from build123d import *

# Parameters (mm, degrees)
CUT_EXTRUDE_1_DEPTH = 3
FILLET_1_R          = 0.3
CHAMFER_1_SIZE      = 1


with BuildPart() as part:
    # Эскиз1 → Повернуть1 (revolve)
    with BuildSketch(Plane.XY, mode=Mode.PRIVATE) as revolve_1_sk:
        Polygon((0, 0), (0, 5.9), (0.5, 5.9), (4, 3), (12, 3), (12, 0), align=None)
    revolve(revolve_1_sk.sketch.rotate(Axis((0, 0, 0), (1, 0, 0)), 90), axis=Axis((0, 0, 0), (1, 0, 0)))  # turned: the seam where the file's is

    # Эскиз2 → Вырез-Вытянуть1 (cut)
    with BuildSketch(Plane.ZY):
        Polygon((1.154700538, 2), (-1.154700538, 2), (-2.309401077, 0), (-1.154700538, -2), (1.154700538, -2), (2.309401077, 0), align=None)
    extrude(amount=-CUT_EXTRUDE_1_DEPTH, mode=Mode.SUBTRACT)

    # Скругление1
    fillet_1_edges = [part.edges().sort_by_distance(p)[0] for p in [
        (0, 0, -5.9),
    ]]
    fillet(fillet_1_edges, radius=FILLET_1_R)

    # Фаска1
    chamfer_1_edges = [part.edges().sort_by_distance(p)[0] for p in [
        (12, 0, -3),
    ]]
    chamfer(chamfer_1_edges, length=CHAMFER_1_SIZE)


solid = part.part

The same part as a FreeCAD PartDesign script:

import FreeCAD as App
import Part
import Sketcher
Q = App.Units.Quantity


def edges_at(feature, points):
    """Names of the edges that pass closest to the given points."""
    edges = feature.Shape.Edges
    near = lambda p: min(range(len(edges)), key=lambda i: edges[i].distToShape(Part.Vertex(*p))[0])
    return sorted({f"Edge{near(p) + 1}" for p in points})

doc = App.newDocument("Part")
params = doc.addObject("Spreadsheet::Sheet", "Params")
for row, (alias, value) in enumerate([
    ("sketch1_width", "12 mm"),
    ("sketch1_width2", "8 mm"),
    ("sketch1_height", "3 mm"),
    ("sketch1_width3", "0.5 mm"),
    ("sketch1_height2", "5.9 mm"),
    ("revolution_angle", "360 deg"),
    ("pocket1_length", "3 mm"),
    ("fillet_radius", "0.3 mm"),
    ("chamfer_size", "1 mm"),
], start=1):
    params.set(f"A{row}", alias)
    params.set(f"B{row}", "=" + value)
    params.setAlias(f"B{row}", alias)

body = doc.addObject("PartDesign::Body", "Body")

sketch1 = doc.addObject("Sketcher::SketchObject", "Sketch")
body.addObject(sketch1)
sketch1.AttachmentSupport = (doc.XY_Plane, [""])
sketch1.MapMode = "FlatFace"
sketch1.addGeometry([
    Part.LineSegment(App.Vector(0, 5.9, 0), App.Vector(0, 0, 0)),
    Part.LineSegment(App.Vector(0, 0, 0), App.Vector(12, 0, 0)),
    Part.LineSegment(App.Vector(12, 0, 0), App.Vector(12, 3, 0)),
    Part.LineSegment(App.Vector(12, 3, 0), App.Vector(4, 3, 0)),
    Part.LineSegment(App.Vector(4, 3, 0), App.Vector(0.5, 5.9, 0)),
    Part.LineSegment(App.Vector(0.5, 5.9, 0), App.Vector(0, 5.9, 0)),
], False)
sketch1.addConstraint([
    Sketcher.Constraint("Coincident", 0, 2, 1, 1),
    Sketcher.Constraint("Coincident", 1, 2, 2, 1),
    Sketcher.Constraint("Coincident", 2, 2, 3, 1),
    Sketcher.Constraint("Coincident", 3, 2, 4, 1),
    Sketcher.Constraint("Coincident", 4, 2, 5, 1),
    Sketcher.Constraint("Coincident", 5, 2, 0, 1),
    Sketcher.Constraint("Vertical", 0),
    Sketcher.Constraint("Horizontal", 1),
    Sketcher.Constraint("Vertical", 2),
    Sketcher.Constraint("Horizontal", 3),
    Sketcher.Constraint("Horizontal", 5),
    Sketcher.Constraint("Coincident", 0, 2, -1, 1),
    Sketcher.Constraint("DistanceX", 1, 1, 1, 2, 12.0),
    Sketcher.Constraint("DistanceX", 3, 2, 3, 1, 8.0),
    Sketcher.Constraint("DistanceY", 2, 1, 2, 2, 3.0),
    Sketcher.Constraint("DistanceX", 5, 2, 5, 1, 0.5),
    Sketcher.Constraint("DistanceY", 0, 2, 0, 1, 5.9),
])
sketch1.setExpression("Constraints[12]", "Params.sketch1_width")
sketch1.setExpression("Constraints[13]", "Params.sketch1_width2")
sketch1.setExpression("Constraints[14]", "Params.sketch1_height")
sketch1.setExpression("Constraints[15]", "Params.sketch1_width3")
sketch1.setExpression("Constraints[16]", "Params.sketch1_height2")
revolution = doc.addObject("PartDesign::Revolution", "Revolution")
body.addObject(revolution)
revolution.Profile = sketch1
revolution.ReferenceAxis = (sketch1, ["H_Axis"])
revolution.setExpression("Angle", "Params.revolution_angle")

sketch2 = doc.addObject("Sketcher::SketchObject", "Sketch001")
body.addObject(sketch2)
sketch2.AttachmentSupport = (doc.YZ_Plane, [""])
sketch2.MapMode = "FlatFace"
sketch2.addGeometry([
    Part.LineSegment(App.Vector(2, 1.2, 0), App.Vector(2, -1.2, 0)),
    Part.LineSegment(App.Vector(2, -1.2, 0), App.Vector(0, -2.3, 0)),
    Part.LineSegment(App.Vector(0, -2.3, 0), App.Vector(-2, -1.2, 0)),
    Part.LineSegment(App.Vector(-2, -1.2, 0), App.Vector(-2, 1.2, 0)),
    Part.LineSegment(App.Vector(-2, 1.2, 0), App.Vector(0, 2.3, 0)),
    Part.LineSegment(App.Vector(0, 2.3, 0), App.Vector(2, 1.2, 0)),
], False)
sketch2.addConstraint([
    Sketcher.Constraint("Coincident", 0, 2, 1, 1),
    Sketcher.Constraint("Coincident", 1, 2, 2, 1),
    Sketcher.Constraint("Coincident", 2, 2, 3, 1),
    Sketcher.Constraint("Coincident", 3, 2, 4, 1),
    Sketcher.Constraint("Coincident", 4, 2, 5, 1),
    Sketcher.Constraint("Coincident", 5, 2, 0, 1),
    Sketcher.Constraint("Vertical", 0),
    Sketcher.Constraint("Vertical", 3),
    Sketcher.Constraint("Symmetric", 0, 2, 3, 2, -1, 1),
    Sketcher.Constraint("Symmetric", 1, 2, 4, 2, -1, 1),
    Sketcher.Constraint("PointOnObject", 1, 2, -2),
    Sketcher.Constraint("Parallel", 2, 5),
    Sketcher.Constraint("Horizontal", 0, 2, 2, 2),
    Sketcher.Constraint("Angle", 1, Q("-150 deg")),
    Sketcher.Constraint("DistanceX", -1, 1, 0, 2, 2.0),
    Sketcher.Constraint("DistanceY", 0, 2, 0, 1, 2.309401),
])
pocket1 = doc.addObject("PartDesign::Pocket", "Pocket")
body.addObject(pocket1)
pocket1.Profile = sketch2
pocket1.setExpression("Length", "Params.pocket1_length")
pocket1.Reversed = True
doc.recompute()

fillet = doc.addObject("PartDesign::Fillet", "Fillet")
body.addObject(fillet)
fillet.Base = (pocket1, edges_at(pocket1, [(0, 0, -5.9)]))
fillet.setExpression("Radius", "Params.fillet_radius")
doc.recompute()

chamfer = doc.addObject("PartDesign::Chamfer", "Chamfer")
body.addObject(chamfer)
chamfer.Base = (fillet, edges_at(fillet, [(12, 0, -3)]))
chamfer.setExpression("Size", "Params.chamfer_size")

doc.recompute()
